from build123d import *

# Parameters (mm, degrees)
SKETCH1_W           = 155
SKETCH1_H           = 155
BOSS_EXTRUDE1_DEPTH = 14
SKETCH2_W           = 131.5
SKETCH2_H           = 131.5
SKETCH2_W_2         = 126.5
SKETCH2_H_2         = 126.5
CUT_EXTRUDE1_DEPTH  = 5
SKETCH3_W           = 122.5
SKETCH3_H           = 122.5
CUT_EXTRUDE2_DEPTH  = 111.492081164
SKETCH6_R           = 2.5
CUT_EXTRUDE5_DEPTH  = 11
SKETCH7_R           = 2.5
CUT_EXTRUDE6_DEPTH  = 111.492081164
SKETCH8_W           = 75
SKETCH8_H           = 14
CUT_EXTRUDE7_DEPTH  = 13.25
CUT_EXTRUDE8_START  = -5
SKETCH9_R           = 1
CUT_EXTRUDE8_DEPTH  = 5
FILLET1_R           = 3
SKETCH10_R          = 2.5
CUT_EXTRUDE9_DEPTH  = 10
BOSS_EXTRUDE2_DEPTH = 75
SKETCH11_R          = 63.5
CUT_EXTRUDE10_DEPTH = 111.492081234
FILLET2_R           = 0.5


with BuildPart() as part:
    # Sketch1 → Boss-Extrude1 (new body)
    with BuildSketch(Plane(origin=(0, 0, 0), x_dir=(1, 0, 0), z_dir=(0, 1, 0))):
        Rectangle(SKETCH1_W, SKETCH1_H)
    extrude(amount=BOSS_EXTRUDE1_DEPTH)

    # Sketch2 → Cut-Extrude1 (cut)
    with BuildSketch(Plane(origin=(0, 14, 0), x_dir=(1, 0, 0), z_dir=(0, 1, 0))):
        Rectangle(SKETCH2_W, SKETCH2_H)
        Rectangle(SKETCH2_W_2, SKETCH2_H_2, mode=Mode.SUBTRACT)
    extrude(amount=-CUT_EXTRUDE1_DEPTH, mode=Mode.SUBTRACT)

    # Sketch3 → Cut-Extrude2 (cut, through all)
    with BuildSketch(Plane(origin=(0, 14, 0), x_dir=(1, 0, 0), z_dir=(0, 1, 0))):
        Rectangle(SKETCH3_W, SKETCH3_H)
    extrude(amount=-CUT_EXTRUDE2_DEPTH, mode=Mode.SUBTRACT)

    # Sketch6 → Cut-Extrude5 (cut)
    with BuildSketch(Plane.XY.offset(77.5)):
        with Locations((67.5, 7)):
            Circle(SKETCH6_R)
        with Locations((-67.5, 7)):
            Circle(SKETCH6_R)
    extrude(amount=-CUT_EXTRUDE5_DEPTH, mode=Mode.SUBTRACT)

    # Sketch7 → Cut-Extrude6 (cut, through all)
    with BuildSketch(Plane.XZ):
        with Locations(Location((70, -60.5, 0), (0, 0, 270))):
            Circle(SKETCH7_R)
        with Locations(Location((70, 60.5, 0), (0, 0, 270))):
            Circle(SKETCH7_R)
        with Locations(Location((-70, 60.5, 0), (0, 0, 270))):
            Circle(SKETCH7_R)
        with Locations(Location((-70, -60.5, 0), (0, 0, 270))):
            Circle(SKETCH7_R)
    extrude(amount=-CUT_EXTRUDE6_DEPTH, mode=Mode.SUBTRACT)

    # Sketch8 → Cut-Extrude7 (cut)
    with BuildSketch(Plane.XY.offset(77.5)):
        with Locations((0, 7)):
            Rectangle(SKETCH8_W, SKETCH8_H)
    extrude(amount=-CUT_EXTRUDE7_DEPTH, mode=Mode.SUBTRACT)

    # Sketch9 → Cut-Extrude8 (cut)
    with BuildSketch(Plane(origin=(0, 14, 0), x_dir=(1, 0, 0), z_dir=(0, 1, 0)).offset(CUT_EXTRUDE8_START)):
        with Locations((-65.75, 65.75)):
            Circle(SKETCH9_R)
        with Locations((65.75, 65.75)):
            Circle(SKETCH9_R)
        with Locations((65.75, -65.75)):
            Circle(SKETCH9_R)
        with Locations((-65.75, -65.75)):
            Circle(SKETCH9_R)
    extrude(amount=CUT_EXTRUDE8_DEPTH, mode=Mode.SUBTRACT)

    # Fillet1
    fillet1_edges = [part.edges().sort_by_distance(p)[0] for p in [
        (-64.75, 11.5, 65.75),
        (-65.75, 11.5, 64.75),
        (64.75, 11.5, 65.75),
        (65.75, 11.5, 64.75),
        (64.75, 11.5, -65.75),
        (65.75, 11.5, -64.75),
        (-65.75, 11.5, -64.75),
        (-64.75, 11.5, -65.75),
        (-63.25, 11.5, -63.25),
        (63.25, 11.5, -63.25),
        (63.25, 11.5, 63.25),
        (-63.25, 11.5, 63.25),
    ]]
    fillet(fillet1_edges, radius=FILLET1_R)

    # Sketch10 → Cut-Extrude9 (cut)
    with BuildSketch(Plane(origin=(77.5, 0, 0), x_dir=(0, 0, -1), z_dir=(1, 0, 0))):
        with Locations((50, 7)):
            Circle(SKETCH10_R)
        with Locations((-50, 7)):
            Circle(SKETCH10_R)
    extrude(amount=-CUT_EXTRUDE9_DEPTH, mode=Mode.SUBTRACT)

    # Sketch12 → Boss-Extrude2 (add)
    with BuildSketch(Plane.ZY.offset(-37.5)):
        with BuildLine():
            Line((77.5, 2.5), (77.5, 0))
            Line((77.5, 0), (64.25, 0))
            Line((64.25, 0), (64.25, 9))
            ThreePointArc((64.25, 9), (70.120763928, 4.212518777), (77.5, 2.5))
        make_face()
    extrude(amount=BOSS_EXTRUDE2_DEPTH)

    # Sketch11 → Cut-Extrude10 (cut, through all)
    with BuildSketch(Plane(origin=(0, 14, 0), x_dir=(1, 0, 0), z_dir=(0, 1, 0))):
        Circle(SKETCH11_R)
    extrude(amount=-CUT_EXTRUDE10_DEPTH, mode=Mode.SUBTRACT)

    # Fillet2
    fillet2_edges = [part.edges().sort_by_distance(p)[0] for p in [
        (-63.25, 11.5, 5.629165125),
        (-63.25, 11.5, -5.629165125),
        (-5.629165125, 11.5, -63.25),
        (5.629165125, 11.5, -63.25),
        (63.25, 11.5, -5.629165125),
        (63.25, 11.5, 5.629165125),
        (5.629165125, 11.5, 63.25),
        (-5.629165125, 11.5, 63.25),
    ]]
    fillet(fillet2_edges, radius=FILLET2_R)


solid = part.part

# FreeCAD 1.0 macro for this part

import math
import FreeCAD as App
import Part
import Sketcher
from FreeCAD import Vector


def edges_at(feature, points):
    """Names of the edges that pass closest to the given points."""
    edges = feature.Shape.Edges
    near = lambda p: min(range(len(edges)), key=lambda i: edges[i].distToShape(Part.Vertex(*p))[0])
    return sorted({f"Edge{near(p) + 1}" for p in points})

doc = App.newDocument("Part")
body = doc.addObject("PartDesign::Body", "Body")

# Sketch on XZ plane
sketch1 = body.newObject("Sketcher::SketchObject", "Sketch")
sketch1.AttachmentSupport = (doc.getObject("XZ_Plane"), [""])
sketch1.MapMode = "FlatFace"
sketch1.addGeometry([
    Part.LineSegment(Vector(-77.5, -77.5, 0), Vector(-77.5, 77.5, 0)),
    Part.LineSegment(Vector(-77.5, 77.5, 0), Vector(77.5, 77.5, 0)),
    Part.LineSegment(Vector(77.5, 77.5, 0), Vector(77.5, -77.5, 0)),
    Part.LineSegment(Vector(77.5, -77.5, 0), Vector(-77.5, -77.5, 0)),
], False)
sketch1.addConstraint([
    Sketcher.Constraint("Coincident", 0, 2, 1, 1),
    Sketcher.Constraint("Coincident", 1, 2, 2, 1),
    Sketcher.Constraint("Coincident", 2, 2, 3, 1),
    Sketcher.Constraint("Coincident", 3, 2, 0, 1),
    Sketcher.Constraint("Vertical", 0),
    Sketcher.Constraint("Horizontal", 1),
    Sketcher.Constraint("Vertical", 2),
    Sketcher.Constraint("Horizontal", 3),
    Sketcher.Constraint("Symmetric", 0, 2, 2, 2, -1, 1),
    Sketcher.Constraint("Equal", 3, 0),
    Sketcher.Constraint("DistanceX", 1, 1, 1, 2, 155.0),
])
pad1 = body.newObject("PartDesign::Pad", "Pad")
pad1.Profile = sketch1
pad1.Length = 14
pad1.Reversed = True

# Sketch on XZ plane
sketch2 = body.newObject("Sketcher::SketchObject", "Sketch001")
sketch2.AttachmentSupport = (doc.getObject("XZ_Plane"), [""])
sketch2.MapMode = "FlatFace"
sketch2.AttachmentOffset = App.Placement(Vector(0, 0, -14), App.Rotation())
sketch2.addGeometry([
    Part.LineSegment(Vector(-65.75, -65.75, 0), Vector(-65.75, 65.75, 0)),  # 0
    Part.LineSegment(Vector(-65.75, 65.75, 0), Vector(65.75, 65.75, 0)),  # 1
    Part.LineSegment(Vector(65.75, 65.75, 0), Vector(65.75, -65.75, 0)),  # 2
    Part.LineSegment(Vector(65.75, -65.75, 0), Vector(-65.75, -65.75, 0)),  # 3
    Part.LineSegment(Vector(63.25, 63.25, 0), Vector(-63.25, 63.25, 0)),  # 4
    Part.LineSegment(Vector(-63.25, 63.25, 0), Vector(-63.25, -63.25, 0)),  # 5
    Part.LineSegment(Vector(-63.25, -63.25, 0), Vector(63.25, -63.25, 0)),  # 6
    Part.LineSegment(Vector(63.25, -63.25, 0), Vector(63.25, 63.25, 0)),  # 7
], False)
sketch2.addConstraint([
    Sketcher.Constraint("Coincident", 0, 2, 1, 1),
    Sketcher.Constraint("Coincident", 1, 2, 2, 1),
    Sketcher.Constraint("Coincident", 2, 2, 3, 1),
    Sketcher.Constraint("Coincident", 3, 2, 0, 1),
    Sketcher.Constraint("Coincident", 4, 2, 5, 1),
    Sketcher.Constraint("Coincident", 5, 2, 6, 1),
    Sketcher.Constraint("Coincident", 6, 2, 7, 1),
    Sketcher.Constraint("Coincident", 7, 2, 4, 1),
    Sketcher.Constraint("Vertical", 0),
    Sketcher.Constraint("Horizontal", 1),
    Sketcher.Constraint("Vertical", 2),
    Sketcher.Constraint("Horizontal", 3),
    Sketcher.Constraint("Horizontal", 4),
    Sketcher.Constraint("Vertical", 5),
    Sketcher.Constraint("Horizontal", 6),
    Sketcher.Constraint("Vertical", 7),
    Sketcher.Constraint("Symmetric", 0, 2, 2, 2, -1, 1),
    Sketcher.Constraint("Symmetric", 4, 2, 6, 2, -1, 1),
    Sketcher.Constraint("Equal", 3, 0),
    Sketcher.Constraint("Equal", 6, 5),
    Sketcher.Constraint("DistanceX", 1, 1, 1, 2, 131.5),
    Sketcher.Constraint("DistanceX", 4, 2, 4, 1, 126.5),
])
pocket1 = body.newObject("PartDesign::Pocket", "Pocket")
pocket1.Profile = sketch2
pocket1.Length = 5
pocket1.Reversed = True

# Sketch on XZ plane
sketch3 = body.newObject("Sketcher::SketchObject", "Sketch002")
sketch3.AttachmentSupport = (doc.getObject("XZ_Plane"), [""])
sketch3.MapMode = "FlatFace"
sketch3.AttachmentOffset = App.Placement(Vector(0, 0, -14), App.Rotation())
sketch3.addGeometry([
    Part.LineSegment(Vector(-61.25, -61.25, 0), Vector(-61.25, 61.25, 0)),
    Part.LineSegment(Vector(-61.25, 61.25, 0), Vector(61.25, 61.25, 0)),
    Part.LineSegment(Vector(61.25, 61.25, 0), Vector(61.25, -61.25, 0)),
    Part.LineSegment(Vector(61.25, -61.25, 0), Vector(-61.25, -61.25, 0)),
], False)
sketch3.addConstraint([
    Sketcher.Constraint("Coincident", 0, 2, 1, 1),
    Sketcher.Constraint("Coincident", 1, 2, 2, 1),
    Sketcher.Constraint("Coincident", 2, 2, 3, 1),
    Sketcher.Constraint("Coincident", 3, 2, 0, 1),
    Sketcher.Constraint("Vertical", 0),
    Sketcher.Constraint("Horizontal", 1),
    Sketcher.Constraint("Vertical", 2),
    Sketcher.Constraint("Horizontal", 3),
    Sketcher.Constraint("Symmetric", 0, 2, 2, 2, -1, 1),
    Sketcher.Constraint("Equal", 3, 0),
    Sketcher.Constraint("DistanceX", 1, 1, 1, 2, 122.5),
])
pocket2 = body.newObject("PartDesign::Pocket", "Pocket001")
pocket2.Profile = sketch3
pocket2.Type = "ThroughAll"
pocket2.Reversed = True

# Sketch on XY plane
sketch4 = body.newObject("Sketcher::SketchObject", "Sketch003")
sketch4.AttachmentSupport = (doc.getObject("XY_Plane"), [""])
sketch4.MapMode = "FlatFace"
sketch4.AttachmentOffset = App.Placement(Vector(0, 0, 77.5), App.Rotation())
sketch4.addGeometry([
    Part.Circle(Vector(67.5, 7, 0), Vector(0, 0, 1), 2.5),
    Part.Circle(Vector(-67.5, 7, 0), Vector(0, 0, 1), 2.5),
], False)
sketch4.addConstraint([
    Sketcher.Constraint("Equal", 0, 1),
    Sketcher.Constraint("Symmetric", 0, 3, 1, 3, -2),
    Sketcher.Constraint("Diameter", 0, 5.0),
    Sketcher.Constraint("DistanceY", -1, 1, 0, 3, 7.0),
    Sketcher.Constraint("DistanceX", 1, 3, 0, 3, 135.0),
])
pocket3 = body.newObject("PartDesign::Pocket", "Pocket002")
pocket3.Profile = sketch4
pocket3.Length = 11

# Sketch on XZ plane
sketch5 = body.newObject("Sketcher::SketchObject", "Sketch004")
sketch5.AttachmentSupport = (doc.getObject("XZ_Plane"), [""])
sketch5.MapMode = "FlatFace"
sketch5.addGeometry([
    Part.Circle(Vector(70, -60.5, 0), Vector(0, 0, 1), 2.5),
    Part.Circle(Vector(70, 60.5, 0), Vector(0, 0, 1), 2.5),
    Part.Circle(Vector(-70, 60.5, 0), Vector(0, 0, 1), 2.5),
    Part.Circle(Vector(-70, -60.5, 0), Vector(0, 0, 1), 2.5),
], False)
sketch5.addConstraint([
    Sketcher.Constraint("Equal", 0, 1),
    Sketcher.Constraint("Equal", 1, 2),
    Sketcher.Constraint("Equal", 2, 3),
    Sketcher.Constraint("Symmetric", 0, 3, 2, 3, -1, 1),
    Sketcher.Constraint("Symmetric", 1, 3, 3, 3, -1, 1),
    Sketcher.Constraint("Symmetric", 1, 3, 2, 3, -2),
    Sketcher.Constraint("Diameter", 0, 5.0),
    Sketcher.Constraint("DistanceX", -1, 1, 0, 3, 70.0),
    Sketcher.Constraint("DistanceY", 0, 3, 1, 3, 121.0),
])
pocket4 = body.newObject("PartDesign::Pocket", "Pocket003")
pocket4.Profile = sketch5
pocket4.Type = "ThroughAll"

# Sketch on XY plane
sketch6 = body.newObject("Sketcher::SketchObject", "Sketch005")
sketch6.AttachmentSupport = (doc.getObject("XY_Plane"), [""])
sketch6.MapMode = "FlatFace"
sketch6.AttachmentOffset = App.Placement(Vector(0, 0, 77.5), App.Rotation())
sketch6.addGeometry([
    Part.LineSegment(Vector(-37.5, 14, 0), Vector(-37.5, 0, 0)),
    Part.LineSegment(Vector(-37.5, 0, 0), Vector(37.5, 0, 0)),
    Part.LineSegment(Vector(37.5, 0, 0), Vector(37.5, 14, 0)),
    Part.LineSegment(Vector(37.5, 14, 0), Vector(-37.5, 14, 0)),
], False)
sketch6.addConstraint([
    Sketcher.Constraint("Coincident", 0, 2, 1, 1),
    Sketcher.Constraint("Coincident", 1, 2, 2, 1),
    Sketcher.Constraint("Coincident", 2, 2, 3, 1),
    Sketcher.Constraint("Coincident", 3, 2, 0, 1),
    Sketcher.Constraint("Vertical", 0),
    Sketcher.Constraint("Horizontal", 1),
    Sketcher.Constraint("Vertical", 2),
    Sketcher.Constraint("Horizontal", 3),
    Sketcher.Constraint("Symmetric", 0, 2, 1, 2, -1, 1),
    Sketcher.Constraint("DistanceX", 1, 1, 1, 2, 75.0),
    Sketcher.Constraint("DistanceY", 0, 2, 0, 1, 14.0),
])
pocket5 = body.newObject("PartDesign::Pocket", "Pocket004")
pocket5.Profile = sketch6
pocket5.Length = 13.25

# Sketch on XZ plane
sketch7 = body.newObject("Sketcher::SketchObject", "Sketch006")
sketch7.AttachmentSupport = (doc.getObject("XZ_Plane"), [""])
sketch7.MapMode = "FlatFace"
sketch7.AttachmentOffset = App.Placement(Vector(0, 0, -9), App.Rotation())
sketch7.addGeometry([
    Part.Circle(Vector(-65.75, -65.75, 0), Vector(0, 0, 1), 1),
    Part.Circle(Vector(65.75, -65.75, 0), Vector(0, 0, 1), 1),
    Part.Circle(Vector(65.75, 65.75, 0), Vector(0, 0, 1), 1),
    Part.Circle(Vector(-65.75, 65.75, 0), Vector(0, 0, 1), 1),
], False)
sketch7.addConstraint([
    Sketcher.Constraint("Equal", 0, 1),
    Sketcher.Constraint("Equal", 1, 2),
    Sketcher.Constraint("Equal", 2, 3),
    Sketcher.Constraint("Symmetric", 0, 3, 2, 3, -1, 1),
    Sketcher.Constraint("Symmetric", 1, 3, 3, 3, -1, 1),
    Sketcher.Constraint("Symmetric", 0, 3, 1, 3, -2),
    Sketcher.Constraint("Diameter", 0, 2.0),
    Sketcher.Constraint("DistanceX", 0, 3, 1, 3, 131.5),
    Sketcher.Constraint("DistanceY", 1, 3, 2, 3, 131.5),
])
pocket6 = body.newObject("PartDesign::Pocket", "Pocket005")
pocket6.Profile = sketch7
pocket6.Length = 5
doc.recompute()

fillet = body.newObject("PartDesign::Fillet", "Fillet")
fillet.Base = (pocket6, edges_at(pocket6, [
    (-64.75, 11.5, 65.75),
    (-65.75, 11.5, 64.75),
    (64.75, 11.5, 65.75),
    (65.75, 11.5, 64.75),
    (64.75, 11.5, -65.75),
    (65.75, 11.5, -64.75),
    (-65.75, 11.5, -64.75),
    (-64.75, 11.5, -65.75),
    (-63.25, 11.5, -63.25),
    (63.25, 11.5, -63.25),
    (63.25, 11.5, 63.25),
    (-63.25, 11.5, 63.25),
]))
fillet.Radius = 3

# Sketch on YZ plane
sketch8 = body.newObject("Sketcher::SketchObject", "Sketch007")
sketch8.AttachmentSupport = (doc.getObject("YZ_Plane"), [""])
sketch8.MapMode = "FlatFace"
sketch8.AttachmentOffset = App.Placement(Vector(0, 0, 77.5), App.Rotation())
sketch8.addGeometry([
    Part.Circle(Vector(7, -50, 0), Vector(0, 0, 1), 2.5),
    Part.Circle(Vector(7, 50, 0), Vector(0, 0, 1), 2.5),
], False)
sketch8.addConstraint([
    Sketcher.Constraint("Equal", 0, 1),
    Sketcher.Constraint("Symmetric", 0, 3, 1, 3, -1),
    Sketcher.Constraint("Diameter", 0, 5.0),
    Sketcher.Constraint("DistanceX", -1, 1, 0, 3, 7.0),
    Sketcher.Constraint("DistanceY", 0, 3, -1, 1, 50.0),
])
pocket7 = body.newObject("PartDesign::Pocket", "Pocket006")
pocket7.Profile = sketch8
pocket7.Length = 10

# Sketch on YZ plane
sketch9 = body.newObject("Sketcher::SketchObject", "Sketch008")
sketch9.AttachmentSupport = (doc.getObject("YZ_Plane"), [""])
sketch9.MapMode = "FlatFace"
sketch9.AttachmentOffset = App.Placement(Vector(0, 0, 37.5), App.Rotation())
sketch9.addGeometry([
    Part.LineSegment(Vector(0, 77.5, 0), Vector(2.5, 77.5, 0)),
    Part.ArcOfCircle(Part.Circle(Vector(19.254808, 77.5, 0), Vector(0, 0, 1), 16.754808), math.radians(180), math.radians(232.262001)),
    Part.LineSegment(Vector(9, 64.25, 0), Vector(0, 64.25, 0)),
    Part.LineSegment(Vector(0, 64.25, 0), Vector(0, 77.5, 0)),
], False)
sketch9.addConstraint([
    Sketcher.Constraint("Coincident", 0, 2, 1, 1),
    Sketcher.Constraint("Coincident", 1, 2, 2, 1),
    Sketcher.Constraint("Coincident", 2, 2, 3, 1),
    Sketcher.Constraint("Coincident", 3, 2, 0, 1),
    Sketcher.Constraint("Horizontal", 0),
    Sketcher.Constraint("Horizontal", 2),
    Sketcher.Constraint("Vertical", 3),
    Sketcher.Constraint("PointOnObject", 2, 2, -2),
    Sketcher.Constraint("Horizontal", 1, 3, 0, 2),
    Sketcher.Constraint("DistanceX", 2, 2, 2, 1, 9.0),
    Sketcher.Constraint("DistanceX", 0, 1, 0, 2, 2.5),
    Sketcher.Constraint("DistanceY", 3, 1, 3, 2, 13.25),
    Sketcher.Constraint("DistanceY", -1, 1, 1, 3, 77.5),
])
pad2 = body.newObject("PartDesign::Pad", "Pad001")
pad2.Profile = sketch9
pad2.Length = 75
pad2.Reversed = True

# Sketch on XZ plane
sketch10 = body.newObject("Sketcher::SketchObject", "Sketch009")
sketch10.AttachmentSupport = (doc.getObject("XZ_Plane"), [""])
sketch10.MapMode = "FlatFace"
sketch10.AttachmentOffset = App.Placement(Vector(0, 0, -14), App.Rotation())
sketch10.addGeometry(Part.Circle(Vector(0, 0, 0), Vector(0, 0, 1), 63.5), False)
sketch10.addConstraint([
    Sketcher.Constraint("Coincident", 0, 3, -1, 1),
    Sketcher.Constraint("Diameter", 0, 127.0),
])
pocket8 = body.newObject("PartDesign::Pocket", "Pocket007")
pocket8.Profile = sketch10
pocket8.Type = "ThroughAll"
pocket8.Reversed = True
doc.recompute()

fillet2 = body.newObject("PartDesign::Fillet", "Fillet001")
fillet2.Base = (pocket8, edges_at(pocket8, [
    (-63.25, 11.5, 5.629),
    (-63.25, 11.5, -5.629),
    (-5.629, 11.5, -63.25),
    (5.629, 11.5, -63.25),
    (63.25, 11.5, -5.629),
    (63.25, 11.5, 5.629),
    (5.629, 11.5, 63.25),
    (-5.629, 11.5, 63.25),
]))
fillet2.Radius = 0.5

doc.recompute()
